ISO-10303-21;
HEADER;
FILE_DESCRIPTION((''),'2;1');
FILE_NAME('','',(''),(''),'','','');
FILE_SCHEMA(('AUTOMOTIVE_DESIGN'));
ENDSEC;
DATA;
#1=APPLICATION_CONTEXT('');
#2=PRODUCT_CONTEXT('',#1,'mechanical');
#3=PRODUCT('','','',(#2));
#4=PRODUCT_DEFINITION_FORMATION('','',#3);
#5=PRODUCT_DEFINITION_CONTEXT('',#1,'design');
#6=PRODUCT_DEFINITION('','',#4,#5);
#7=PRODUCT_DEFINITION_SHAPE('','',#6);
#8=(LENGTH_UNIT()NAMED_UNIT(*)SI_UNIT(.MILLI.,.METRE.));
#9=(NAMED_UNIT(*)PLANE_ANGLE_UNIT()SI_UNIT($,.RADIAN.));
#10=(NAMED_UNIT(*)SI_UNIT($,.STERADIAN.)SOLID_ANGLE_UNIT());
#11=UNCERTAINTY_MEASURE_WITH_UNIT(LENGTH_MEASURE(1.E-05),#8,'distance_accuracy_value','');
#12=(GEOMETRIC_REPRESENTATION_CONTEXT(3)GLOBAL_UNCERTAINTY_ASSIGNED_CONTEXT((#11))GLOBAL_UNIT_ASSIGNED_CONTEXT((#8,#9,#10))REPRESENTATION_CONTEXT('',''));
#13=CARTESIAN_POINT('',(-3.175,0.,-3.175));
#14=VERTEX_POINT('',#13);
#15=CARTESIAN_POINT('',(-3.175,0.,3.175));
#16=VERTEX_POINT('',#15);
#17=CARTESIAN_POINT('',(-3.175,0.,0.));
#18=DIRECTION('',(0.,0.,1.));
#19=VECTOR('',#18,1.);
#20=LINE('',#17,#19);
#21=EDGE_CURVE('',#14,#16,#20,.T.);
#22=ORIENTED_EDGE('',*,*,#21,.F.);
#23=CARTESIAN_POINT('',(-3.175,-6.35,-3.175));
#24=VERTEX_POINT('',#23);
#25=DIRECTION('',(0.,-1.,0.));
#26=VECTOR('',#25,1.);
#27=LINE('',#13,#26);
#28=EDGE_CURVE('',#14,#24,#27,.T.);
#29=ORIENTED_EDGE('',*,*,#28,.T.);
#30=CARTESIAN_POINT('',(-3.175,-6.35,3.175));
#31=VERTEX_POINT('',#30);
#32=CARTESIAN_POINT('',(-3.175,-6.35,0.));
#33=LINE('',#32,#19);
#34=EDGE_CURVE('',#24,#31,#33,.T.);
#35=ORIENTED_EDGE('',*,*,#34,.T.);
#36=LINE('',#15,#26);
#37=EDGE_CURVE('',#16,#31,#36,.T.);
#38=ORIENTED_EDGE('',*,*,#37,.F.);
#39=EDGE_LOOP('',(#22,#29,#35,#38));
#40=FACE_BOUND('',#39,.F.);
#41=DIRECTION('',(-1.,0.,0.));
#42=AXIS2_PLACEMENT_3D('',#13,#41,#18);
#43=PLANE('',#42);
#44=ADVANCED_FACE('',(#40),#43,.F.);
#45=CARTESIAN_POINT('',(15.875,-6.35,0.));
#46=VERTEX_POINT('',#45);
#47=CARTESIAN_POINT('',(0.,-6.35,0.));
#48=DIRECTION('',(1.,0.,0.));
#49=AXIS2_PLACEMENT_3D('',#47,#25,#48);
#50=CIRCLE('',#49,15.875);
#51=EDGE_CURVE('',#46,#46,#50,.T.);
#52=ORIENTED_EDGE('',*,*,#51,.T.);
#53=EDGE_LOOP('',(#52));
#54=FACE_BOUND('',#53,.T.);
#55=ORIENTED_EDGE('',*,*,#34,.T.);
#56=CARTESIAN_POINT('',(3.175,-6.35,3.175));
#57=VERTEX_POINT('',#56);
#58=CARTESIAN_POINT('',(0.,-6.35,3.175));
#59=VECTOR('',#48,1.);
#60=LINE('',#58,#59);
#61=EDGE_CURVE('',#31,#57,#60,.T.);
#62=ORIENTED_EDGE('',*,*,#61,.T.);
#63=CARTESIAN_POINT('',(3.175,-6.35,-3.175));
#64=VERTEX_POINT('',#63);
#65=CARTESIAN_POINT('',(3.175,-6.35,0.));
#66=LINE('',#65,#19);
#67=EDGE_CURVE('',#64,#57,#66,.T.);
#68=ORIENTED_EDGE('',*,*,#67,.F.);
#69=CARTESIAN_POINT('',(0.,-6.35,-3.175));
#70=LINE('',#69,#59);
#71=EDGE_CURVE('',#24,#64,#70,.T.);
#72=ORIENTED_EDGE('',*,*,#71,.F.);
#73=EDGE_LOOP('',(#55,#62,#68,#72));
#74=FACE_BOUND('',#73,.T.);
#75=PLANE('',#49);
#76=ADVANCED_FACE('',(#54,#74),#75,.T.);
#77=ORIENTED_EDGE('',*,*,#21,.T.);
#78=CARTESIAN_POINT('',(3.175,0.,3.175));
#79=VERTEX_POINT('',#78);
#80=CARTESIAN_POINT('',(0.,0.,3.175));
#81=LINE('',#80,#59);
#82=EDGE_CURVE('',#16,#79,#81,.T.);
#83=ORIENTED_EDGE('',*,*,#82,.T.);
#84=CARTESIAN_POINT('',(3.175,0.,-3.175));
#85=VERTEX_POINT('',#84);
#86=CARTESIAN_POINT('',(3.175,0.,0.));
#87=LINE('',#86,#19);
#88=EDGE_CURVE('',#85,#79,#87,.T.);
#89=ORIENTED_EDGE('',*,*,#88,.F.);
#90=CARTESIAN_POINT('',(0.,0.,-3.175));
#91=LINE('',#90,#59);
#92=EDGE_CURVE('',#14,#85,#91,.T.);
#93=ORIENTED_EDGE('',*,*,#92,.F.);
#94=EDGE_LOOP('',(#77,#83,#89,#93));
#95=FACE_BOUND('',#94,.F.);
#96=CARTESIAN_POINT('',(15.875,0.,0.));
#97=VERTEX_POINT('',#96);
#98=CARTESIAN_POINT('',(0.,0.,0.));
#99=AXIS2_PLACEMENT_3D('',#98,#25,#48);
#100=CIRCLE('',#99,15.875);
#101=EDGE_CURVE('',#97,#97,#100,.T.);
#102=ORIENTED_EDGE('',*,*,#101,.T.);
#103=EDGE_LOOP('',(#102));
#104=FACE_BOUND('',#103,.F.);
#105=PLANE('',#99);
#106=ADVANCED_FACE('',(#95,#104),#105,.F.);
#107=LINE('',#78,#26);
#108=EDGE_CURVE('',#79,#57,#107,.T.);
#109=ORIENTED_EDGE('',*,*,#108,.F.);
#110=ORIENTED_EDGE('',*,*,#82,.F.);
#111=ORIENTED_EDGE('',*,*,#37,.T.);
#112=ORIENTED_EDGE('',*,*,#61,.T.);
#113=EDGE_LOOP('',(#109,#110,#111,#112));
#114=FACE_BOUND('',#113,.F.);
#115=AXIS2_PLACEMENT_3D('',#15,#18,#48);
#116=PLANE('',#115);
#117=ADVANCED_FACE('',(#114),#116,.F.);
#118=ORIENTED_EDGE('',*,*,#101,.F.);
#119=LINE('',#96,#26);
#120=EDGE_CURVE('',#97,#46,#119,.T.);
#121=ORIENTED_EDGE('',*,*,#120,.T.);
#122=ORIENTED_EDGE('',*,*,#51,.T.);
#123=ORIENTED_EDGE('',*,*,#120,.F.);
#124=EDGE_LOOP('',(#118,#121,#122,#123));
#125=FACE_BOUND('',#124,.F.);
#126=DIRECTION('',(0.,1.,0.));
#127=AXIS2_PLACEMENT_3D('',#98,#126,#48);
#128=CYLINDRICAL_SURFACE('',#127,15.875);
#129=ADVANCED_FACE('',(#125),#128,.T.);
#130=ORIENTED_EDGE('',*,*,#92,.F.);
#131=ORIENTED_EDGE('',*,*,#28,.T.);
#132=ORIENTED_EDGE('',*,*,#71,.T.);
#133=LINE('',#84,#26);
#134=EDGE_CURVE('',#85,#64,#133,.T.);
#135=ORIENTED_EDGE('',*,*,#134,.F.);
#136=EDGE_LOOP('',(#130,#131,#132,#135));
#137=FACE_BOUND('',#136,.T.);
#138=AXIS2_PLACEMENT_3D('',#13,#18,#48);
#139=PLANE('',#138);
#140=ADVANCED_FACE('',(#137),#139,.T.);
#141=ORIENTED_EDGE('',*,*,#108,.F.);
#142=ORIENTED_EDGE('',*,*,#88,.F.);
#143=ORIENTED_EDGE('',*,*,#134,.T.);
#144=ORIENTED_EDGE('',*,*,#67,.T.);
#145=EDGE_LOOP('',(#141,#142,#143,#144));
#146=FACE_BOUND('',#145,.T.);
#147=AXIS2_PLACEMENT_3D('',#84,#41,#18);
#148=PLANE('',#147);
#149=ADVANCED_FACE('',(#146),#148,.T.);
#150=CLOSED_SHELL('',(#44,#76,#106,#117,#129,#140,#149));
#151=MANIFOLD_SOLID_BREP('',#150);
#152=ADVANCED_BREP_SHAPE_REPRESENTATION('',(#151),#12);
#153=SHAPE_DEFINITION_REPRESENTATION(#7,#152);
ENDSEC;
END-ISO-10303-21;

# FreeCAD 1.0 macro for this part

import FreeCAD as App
import Part
import Sketcher
from FreeCAD import Vector
Q = App.Units.Quantity

doc = App.newDocument("Part")
body = doc.addObject("PartDesign::Body", "Body")

# Sketch on XZ plane
sketch1 = body.newObject("Sketcher::SketchObject", "Sketch")
sketch1.AttachmentSupport = (doc.getObject("XZ_Plane"), [""])
sketch1.MapMode = "FlatFace"
sketch1.addGeometry(Part.Circle(Vector(0, 0, 0), Vector(0, 0, 1), 16), False)
sketch1.addGeometry(Part.LineSegment(Vector(3, -3, 0), Vector(-3, -3, 0)), False)
sketch1.addGeometry(Part.LineSegment(Vector(-3, -3, 0), Vector(-3, 3, 0)), False)
sketch1.addGeometry(Part.LineSegment(Vector(-3, 3, 0), Vector(3, 3, 0)), False)
sketch1.addGeometry(Part.LineSegment(Vector(3, 3, 0), Vector(3, -3, 0)), False)
sketch1.addConstraint(Sketcher.Constraint("Coincident", 1, 2, 2, 1))
sketch1.addConstraint(Sketcher.Constraint("Coincident", 2, 2, 3, 1))
sketch1.addConstraint(Sketcher.Constraint("Coincident", 3, 2, 4, 1))
sketch1.addConstraint(Sketcher.Constraint("Coincident", 4, 2, 1, 1))
sketch1.addConstraint(Sketcher.Constraint("Horizontal", 1))
sketch1.addConstraint(Sketcher.Constraint("Vertical", 2))
sketch1.addConstraint(Sketcher.Constraint("Horizontal", 3))
sketch1.addConstraint(Sketcher.Constraint("Vertical", 4))
sketch1.addConstraint(Sketcher.Constraint("Coincident", 0, 3, -1, 1))
sketch1.addConstraint(Sketcher.Constraint("Symmetric", 1, 2, 3, 2, -1, 1))
sketch1.addConstraint(Sketcher.Constraint("Equal", 3, 2))
sketch1.addConstraint(Sketcher.Constraint("Diameter", 0, Q("1.25 in")))
sketch1.addConstraint(Sketcher.Constraint("DistanceX", 1, 2, 1, 1, Q("0.25 in")))
pad1 = body.newObject("PartDesign::Pad", "Pad")
pad1.Profile = sketch1
pad1.Length = Q("0.25 in")

doc.recompute()
